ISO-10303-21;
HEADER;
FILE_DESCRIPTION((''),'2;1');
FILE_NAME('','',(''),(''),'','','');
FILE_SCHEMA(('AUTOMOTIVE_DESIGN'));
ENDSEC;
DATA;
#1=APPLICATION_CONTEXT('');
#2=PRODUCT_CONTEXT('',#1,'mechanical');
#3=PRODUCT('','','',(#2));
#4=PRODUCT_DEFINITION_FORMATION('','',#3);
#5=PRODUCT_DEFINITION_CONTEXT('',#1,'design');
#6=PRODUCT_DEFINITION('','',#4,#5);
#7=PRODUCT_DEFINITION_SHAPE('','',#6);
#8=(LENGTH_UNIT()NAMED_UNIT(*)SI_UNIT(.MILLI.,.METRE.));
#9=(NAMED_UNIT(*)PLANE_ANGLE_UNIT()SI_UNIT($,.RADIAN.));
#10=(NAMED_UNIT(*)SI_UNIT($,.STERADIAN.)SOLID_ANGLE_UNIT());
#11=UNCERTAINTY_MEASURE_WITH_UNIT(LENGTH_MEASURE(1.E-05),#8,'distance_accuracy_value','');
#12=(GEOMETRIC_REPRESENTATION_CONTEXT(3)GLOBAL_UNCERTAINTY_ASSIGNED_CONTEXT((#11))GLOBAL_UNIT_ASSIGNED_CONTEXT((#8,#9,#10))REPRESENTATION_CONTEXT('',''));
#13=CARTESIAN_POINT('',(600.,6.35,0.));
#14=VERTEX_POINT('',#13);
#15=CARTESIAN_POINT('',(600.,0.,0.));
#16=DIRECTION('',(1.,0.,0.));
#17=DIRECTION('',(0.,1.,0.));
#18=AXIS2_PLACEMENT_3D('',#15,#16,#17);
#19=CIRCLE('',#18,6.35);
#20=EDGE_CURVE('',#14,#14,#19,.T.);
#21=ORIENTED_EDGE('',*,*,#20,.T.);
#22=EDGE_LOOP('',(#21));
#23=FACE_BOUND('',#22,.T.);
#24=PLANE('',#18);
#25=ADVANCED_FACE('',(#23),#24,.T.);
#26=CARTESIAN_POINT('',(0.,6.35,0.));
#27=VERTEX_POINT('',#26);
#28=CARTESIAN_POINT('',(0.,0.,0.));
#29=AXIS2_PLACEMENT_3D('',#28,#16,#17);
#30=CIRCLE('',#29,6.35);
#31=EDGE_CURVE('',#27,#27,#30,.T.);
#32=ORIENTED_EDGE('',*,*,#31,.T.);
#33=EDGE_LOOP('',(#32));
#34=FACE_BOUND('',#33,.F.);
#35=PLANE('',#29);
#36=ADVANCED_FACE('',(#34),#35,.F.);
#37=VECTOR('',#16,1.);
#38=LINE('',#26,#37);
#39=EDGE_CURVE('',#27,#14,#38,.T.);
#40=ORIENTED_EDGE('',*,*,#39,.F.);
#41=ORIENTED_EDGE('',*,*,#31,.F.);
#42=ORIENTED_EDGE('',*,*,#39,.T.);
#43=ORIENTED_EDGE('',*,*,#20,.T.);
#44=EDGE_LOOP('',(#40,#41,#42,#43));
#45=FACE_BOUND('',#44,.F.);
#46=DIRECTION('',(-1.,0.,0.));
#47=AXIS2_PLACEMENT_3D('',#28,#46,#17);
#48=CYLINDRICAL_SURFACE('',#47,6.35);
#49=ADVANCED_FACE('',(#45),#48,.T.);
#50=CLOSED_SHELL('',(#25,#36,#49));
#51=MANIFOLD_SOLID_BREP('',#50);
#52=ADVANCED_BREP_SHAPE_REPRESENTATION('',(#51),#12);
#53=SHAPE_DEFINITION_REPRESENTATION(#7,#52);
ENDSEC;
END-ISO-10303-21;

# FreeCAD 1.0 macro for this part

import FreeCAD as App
import Part
import Sketcher
from FreeCAD import Vector

doc = App.newDocument("Part")
params = doc.addObject("Spreadsheet::Sheet", "Params")
for row, (alias, value) in enumerate([
    ("sketch1_diameter", "12.7 mm"),
    ("pad1_length", "600 mm"),
], start=1):
    params.set(f"A{row}", alias)
    params.set(f"B{row}", "=" + value)
    params.setAlias(f"B{row}", alias)

body = doc.addObject("PartDesign::Body", "Body")

sketch1 = body.newObject("Sketcher::SketchObject", "Sketch")
sketch1.AttachmentSupport = (doc.getObject("YZ_Plane"), [""])
sketch1.MapMode = "FlatFace"
sketch1.addGeometry(Part.Circle(Vector(0, 0, 0), Vector(0, 0, 1), 6), False)
sketch1.addConstraint([
    Sketcher.Constraint("Coincident", 0, 3, -1, 1),
    Sketcher.Constraint("Diameter", 0, 12.7),
])
sketch1.setExpression("Constraints[1]", "Params.sketch1_diameter")
pad1 = body.newObject("PartDesign::Pad", "Pad")
pad1.Profile = sketch1
pad1.setExpression("Length", "Params.pad1_length")

doc.recompute()
